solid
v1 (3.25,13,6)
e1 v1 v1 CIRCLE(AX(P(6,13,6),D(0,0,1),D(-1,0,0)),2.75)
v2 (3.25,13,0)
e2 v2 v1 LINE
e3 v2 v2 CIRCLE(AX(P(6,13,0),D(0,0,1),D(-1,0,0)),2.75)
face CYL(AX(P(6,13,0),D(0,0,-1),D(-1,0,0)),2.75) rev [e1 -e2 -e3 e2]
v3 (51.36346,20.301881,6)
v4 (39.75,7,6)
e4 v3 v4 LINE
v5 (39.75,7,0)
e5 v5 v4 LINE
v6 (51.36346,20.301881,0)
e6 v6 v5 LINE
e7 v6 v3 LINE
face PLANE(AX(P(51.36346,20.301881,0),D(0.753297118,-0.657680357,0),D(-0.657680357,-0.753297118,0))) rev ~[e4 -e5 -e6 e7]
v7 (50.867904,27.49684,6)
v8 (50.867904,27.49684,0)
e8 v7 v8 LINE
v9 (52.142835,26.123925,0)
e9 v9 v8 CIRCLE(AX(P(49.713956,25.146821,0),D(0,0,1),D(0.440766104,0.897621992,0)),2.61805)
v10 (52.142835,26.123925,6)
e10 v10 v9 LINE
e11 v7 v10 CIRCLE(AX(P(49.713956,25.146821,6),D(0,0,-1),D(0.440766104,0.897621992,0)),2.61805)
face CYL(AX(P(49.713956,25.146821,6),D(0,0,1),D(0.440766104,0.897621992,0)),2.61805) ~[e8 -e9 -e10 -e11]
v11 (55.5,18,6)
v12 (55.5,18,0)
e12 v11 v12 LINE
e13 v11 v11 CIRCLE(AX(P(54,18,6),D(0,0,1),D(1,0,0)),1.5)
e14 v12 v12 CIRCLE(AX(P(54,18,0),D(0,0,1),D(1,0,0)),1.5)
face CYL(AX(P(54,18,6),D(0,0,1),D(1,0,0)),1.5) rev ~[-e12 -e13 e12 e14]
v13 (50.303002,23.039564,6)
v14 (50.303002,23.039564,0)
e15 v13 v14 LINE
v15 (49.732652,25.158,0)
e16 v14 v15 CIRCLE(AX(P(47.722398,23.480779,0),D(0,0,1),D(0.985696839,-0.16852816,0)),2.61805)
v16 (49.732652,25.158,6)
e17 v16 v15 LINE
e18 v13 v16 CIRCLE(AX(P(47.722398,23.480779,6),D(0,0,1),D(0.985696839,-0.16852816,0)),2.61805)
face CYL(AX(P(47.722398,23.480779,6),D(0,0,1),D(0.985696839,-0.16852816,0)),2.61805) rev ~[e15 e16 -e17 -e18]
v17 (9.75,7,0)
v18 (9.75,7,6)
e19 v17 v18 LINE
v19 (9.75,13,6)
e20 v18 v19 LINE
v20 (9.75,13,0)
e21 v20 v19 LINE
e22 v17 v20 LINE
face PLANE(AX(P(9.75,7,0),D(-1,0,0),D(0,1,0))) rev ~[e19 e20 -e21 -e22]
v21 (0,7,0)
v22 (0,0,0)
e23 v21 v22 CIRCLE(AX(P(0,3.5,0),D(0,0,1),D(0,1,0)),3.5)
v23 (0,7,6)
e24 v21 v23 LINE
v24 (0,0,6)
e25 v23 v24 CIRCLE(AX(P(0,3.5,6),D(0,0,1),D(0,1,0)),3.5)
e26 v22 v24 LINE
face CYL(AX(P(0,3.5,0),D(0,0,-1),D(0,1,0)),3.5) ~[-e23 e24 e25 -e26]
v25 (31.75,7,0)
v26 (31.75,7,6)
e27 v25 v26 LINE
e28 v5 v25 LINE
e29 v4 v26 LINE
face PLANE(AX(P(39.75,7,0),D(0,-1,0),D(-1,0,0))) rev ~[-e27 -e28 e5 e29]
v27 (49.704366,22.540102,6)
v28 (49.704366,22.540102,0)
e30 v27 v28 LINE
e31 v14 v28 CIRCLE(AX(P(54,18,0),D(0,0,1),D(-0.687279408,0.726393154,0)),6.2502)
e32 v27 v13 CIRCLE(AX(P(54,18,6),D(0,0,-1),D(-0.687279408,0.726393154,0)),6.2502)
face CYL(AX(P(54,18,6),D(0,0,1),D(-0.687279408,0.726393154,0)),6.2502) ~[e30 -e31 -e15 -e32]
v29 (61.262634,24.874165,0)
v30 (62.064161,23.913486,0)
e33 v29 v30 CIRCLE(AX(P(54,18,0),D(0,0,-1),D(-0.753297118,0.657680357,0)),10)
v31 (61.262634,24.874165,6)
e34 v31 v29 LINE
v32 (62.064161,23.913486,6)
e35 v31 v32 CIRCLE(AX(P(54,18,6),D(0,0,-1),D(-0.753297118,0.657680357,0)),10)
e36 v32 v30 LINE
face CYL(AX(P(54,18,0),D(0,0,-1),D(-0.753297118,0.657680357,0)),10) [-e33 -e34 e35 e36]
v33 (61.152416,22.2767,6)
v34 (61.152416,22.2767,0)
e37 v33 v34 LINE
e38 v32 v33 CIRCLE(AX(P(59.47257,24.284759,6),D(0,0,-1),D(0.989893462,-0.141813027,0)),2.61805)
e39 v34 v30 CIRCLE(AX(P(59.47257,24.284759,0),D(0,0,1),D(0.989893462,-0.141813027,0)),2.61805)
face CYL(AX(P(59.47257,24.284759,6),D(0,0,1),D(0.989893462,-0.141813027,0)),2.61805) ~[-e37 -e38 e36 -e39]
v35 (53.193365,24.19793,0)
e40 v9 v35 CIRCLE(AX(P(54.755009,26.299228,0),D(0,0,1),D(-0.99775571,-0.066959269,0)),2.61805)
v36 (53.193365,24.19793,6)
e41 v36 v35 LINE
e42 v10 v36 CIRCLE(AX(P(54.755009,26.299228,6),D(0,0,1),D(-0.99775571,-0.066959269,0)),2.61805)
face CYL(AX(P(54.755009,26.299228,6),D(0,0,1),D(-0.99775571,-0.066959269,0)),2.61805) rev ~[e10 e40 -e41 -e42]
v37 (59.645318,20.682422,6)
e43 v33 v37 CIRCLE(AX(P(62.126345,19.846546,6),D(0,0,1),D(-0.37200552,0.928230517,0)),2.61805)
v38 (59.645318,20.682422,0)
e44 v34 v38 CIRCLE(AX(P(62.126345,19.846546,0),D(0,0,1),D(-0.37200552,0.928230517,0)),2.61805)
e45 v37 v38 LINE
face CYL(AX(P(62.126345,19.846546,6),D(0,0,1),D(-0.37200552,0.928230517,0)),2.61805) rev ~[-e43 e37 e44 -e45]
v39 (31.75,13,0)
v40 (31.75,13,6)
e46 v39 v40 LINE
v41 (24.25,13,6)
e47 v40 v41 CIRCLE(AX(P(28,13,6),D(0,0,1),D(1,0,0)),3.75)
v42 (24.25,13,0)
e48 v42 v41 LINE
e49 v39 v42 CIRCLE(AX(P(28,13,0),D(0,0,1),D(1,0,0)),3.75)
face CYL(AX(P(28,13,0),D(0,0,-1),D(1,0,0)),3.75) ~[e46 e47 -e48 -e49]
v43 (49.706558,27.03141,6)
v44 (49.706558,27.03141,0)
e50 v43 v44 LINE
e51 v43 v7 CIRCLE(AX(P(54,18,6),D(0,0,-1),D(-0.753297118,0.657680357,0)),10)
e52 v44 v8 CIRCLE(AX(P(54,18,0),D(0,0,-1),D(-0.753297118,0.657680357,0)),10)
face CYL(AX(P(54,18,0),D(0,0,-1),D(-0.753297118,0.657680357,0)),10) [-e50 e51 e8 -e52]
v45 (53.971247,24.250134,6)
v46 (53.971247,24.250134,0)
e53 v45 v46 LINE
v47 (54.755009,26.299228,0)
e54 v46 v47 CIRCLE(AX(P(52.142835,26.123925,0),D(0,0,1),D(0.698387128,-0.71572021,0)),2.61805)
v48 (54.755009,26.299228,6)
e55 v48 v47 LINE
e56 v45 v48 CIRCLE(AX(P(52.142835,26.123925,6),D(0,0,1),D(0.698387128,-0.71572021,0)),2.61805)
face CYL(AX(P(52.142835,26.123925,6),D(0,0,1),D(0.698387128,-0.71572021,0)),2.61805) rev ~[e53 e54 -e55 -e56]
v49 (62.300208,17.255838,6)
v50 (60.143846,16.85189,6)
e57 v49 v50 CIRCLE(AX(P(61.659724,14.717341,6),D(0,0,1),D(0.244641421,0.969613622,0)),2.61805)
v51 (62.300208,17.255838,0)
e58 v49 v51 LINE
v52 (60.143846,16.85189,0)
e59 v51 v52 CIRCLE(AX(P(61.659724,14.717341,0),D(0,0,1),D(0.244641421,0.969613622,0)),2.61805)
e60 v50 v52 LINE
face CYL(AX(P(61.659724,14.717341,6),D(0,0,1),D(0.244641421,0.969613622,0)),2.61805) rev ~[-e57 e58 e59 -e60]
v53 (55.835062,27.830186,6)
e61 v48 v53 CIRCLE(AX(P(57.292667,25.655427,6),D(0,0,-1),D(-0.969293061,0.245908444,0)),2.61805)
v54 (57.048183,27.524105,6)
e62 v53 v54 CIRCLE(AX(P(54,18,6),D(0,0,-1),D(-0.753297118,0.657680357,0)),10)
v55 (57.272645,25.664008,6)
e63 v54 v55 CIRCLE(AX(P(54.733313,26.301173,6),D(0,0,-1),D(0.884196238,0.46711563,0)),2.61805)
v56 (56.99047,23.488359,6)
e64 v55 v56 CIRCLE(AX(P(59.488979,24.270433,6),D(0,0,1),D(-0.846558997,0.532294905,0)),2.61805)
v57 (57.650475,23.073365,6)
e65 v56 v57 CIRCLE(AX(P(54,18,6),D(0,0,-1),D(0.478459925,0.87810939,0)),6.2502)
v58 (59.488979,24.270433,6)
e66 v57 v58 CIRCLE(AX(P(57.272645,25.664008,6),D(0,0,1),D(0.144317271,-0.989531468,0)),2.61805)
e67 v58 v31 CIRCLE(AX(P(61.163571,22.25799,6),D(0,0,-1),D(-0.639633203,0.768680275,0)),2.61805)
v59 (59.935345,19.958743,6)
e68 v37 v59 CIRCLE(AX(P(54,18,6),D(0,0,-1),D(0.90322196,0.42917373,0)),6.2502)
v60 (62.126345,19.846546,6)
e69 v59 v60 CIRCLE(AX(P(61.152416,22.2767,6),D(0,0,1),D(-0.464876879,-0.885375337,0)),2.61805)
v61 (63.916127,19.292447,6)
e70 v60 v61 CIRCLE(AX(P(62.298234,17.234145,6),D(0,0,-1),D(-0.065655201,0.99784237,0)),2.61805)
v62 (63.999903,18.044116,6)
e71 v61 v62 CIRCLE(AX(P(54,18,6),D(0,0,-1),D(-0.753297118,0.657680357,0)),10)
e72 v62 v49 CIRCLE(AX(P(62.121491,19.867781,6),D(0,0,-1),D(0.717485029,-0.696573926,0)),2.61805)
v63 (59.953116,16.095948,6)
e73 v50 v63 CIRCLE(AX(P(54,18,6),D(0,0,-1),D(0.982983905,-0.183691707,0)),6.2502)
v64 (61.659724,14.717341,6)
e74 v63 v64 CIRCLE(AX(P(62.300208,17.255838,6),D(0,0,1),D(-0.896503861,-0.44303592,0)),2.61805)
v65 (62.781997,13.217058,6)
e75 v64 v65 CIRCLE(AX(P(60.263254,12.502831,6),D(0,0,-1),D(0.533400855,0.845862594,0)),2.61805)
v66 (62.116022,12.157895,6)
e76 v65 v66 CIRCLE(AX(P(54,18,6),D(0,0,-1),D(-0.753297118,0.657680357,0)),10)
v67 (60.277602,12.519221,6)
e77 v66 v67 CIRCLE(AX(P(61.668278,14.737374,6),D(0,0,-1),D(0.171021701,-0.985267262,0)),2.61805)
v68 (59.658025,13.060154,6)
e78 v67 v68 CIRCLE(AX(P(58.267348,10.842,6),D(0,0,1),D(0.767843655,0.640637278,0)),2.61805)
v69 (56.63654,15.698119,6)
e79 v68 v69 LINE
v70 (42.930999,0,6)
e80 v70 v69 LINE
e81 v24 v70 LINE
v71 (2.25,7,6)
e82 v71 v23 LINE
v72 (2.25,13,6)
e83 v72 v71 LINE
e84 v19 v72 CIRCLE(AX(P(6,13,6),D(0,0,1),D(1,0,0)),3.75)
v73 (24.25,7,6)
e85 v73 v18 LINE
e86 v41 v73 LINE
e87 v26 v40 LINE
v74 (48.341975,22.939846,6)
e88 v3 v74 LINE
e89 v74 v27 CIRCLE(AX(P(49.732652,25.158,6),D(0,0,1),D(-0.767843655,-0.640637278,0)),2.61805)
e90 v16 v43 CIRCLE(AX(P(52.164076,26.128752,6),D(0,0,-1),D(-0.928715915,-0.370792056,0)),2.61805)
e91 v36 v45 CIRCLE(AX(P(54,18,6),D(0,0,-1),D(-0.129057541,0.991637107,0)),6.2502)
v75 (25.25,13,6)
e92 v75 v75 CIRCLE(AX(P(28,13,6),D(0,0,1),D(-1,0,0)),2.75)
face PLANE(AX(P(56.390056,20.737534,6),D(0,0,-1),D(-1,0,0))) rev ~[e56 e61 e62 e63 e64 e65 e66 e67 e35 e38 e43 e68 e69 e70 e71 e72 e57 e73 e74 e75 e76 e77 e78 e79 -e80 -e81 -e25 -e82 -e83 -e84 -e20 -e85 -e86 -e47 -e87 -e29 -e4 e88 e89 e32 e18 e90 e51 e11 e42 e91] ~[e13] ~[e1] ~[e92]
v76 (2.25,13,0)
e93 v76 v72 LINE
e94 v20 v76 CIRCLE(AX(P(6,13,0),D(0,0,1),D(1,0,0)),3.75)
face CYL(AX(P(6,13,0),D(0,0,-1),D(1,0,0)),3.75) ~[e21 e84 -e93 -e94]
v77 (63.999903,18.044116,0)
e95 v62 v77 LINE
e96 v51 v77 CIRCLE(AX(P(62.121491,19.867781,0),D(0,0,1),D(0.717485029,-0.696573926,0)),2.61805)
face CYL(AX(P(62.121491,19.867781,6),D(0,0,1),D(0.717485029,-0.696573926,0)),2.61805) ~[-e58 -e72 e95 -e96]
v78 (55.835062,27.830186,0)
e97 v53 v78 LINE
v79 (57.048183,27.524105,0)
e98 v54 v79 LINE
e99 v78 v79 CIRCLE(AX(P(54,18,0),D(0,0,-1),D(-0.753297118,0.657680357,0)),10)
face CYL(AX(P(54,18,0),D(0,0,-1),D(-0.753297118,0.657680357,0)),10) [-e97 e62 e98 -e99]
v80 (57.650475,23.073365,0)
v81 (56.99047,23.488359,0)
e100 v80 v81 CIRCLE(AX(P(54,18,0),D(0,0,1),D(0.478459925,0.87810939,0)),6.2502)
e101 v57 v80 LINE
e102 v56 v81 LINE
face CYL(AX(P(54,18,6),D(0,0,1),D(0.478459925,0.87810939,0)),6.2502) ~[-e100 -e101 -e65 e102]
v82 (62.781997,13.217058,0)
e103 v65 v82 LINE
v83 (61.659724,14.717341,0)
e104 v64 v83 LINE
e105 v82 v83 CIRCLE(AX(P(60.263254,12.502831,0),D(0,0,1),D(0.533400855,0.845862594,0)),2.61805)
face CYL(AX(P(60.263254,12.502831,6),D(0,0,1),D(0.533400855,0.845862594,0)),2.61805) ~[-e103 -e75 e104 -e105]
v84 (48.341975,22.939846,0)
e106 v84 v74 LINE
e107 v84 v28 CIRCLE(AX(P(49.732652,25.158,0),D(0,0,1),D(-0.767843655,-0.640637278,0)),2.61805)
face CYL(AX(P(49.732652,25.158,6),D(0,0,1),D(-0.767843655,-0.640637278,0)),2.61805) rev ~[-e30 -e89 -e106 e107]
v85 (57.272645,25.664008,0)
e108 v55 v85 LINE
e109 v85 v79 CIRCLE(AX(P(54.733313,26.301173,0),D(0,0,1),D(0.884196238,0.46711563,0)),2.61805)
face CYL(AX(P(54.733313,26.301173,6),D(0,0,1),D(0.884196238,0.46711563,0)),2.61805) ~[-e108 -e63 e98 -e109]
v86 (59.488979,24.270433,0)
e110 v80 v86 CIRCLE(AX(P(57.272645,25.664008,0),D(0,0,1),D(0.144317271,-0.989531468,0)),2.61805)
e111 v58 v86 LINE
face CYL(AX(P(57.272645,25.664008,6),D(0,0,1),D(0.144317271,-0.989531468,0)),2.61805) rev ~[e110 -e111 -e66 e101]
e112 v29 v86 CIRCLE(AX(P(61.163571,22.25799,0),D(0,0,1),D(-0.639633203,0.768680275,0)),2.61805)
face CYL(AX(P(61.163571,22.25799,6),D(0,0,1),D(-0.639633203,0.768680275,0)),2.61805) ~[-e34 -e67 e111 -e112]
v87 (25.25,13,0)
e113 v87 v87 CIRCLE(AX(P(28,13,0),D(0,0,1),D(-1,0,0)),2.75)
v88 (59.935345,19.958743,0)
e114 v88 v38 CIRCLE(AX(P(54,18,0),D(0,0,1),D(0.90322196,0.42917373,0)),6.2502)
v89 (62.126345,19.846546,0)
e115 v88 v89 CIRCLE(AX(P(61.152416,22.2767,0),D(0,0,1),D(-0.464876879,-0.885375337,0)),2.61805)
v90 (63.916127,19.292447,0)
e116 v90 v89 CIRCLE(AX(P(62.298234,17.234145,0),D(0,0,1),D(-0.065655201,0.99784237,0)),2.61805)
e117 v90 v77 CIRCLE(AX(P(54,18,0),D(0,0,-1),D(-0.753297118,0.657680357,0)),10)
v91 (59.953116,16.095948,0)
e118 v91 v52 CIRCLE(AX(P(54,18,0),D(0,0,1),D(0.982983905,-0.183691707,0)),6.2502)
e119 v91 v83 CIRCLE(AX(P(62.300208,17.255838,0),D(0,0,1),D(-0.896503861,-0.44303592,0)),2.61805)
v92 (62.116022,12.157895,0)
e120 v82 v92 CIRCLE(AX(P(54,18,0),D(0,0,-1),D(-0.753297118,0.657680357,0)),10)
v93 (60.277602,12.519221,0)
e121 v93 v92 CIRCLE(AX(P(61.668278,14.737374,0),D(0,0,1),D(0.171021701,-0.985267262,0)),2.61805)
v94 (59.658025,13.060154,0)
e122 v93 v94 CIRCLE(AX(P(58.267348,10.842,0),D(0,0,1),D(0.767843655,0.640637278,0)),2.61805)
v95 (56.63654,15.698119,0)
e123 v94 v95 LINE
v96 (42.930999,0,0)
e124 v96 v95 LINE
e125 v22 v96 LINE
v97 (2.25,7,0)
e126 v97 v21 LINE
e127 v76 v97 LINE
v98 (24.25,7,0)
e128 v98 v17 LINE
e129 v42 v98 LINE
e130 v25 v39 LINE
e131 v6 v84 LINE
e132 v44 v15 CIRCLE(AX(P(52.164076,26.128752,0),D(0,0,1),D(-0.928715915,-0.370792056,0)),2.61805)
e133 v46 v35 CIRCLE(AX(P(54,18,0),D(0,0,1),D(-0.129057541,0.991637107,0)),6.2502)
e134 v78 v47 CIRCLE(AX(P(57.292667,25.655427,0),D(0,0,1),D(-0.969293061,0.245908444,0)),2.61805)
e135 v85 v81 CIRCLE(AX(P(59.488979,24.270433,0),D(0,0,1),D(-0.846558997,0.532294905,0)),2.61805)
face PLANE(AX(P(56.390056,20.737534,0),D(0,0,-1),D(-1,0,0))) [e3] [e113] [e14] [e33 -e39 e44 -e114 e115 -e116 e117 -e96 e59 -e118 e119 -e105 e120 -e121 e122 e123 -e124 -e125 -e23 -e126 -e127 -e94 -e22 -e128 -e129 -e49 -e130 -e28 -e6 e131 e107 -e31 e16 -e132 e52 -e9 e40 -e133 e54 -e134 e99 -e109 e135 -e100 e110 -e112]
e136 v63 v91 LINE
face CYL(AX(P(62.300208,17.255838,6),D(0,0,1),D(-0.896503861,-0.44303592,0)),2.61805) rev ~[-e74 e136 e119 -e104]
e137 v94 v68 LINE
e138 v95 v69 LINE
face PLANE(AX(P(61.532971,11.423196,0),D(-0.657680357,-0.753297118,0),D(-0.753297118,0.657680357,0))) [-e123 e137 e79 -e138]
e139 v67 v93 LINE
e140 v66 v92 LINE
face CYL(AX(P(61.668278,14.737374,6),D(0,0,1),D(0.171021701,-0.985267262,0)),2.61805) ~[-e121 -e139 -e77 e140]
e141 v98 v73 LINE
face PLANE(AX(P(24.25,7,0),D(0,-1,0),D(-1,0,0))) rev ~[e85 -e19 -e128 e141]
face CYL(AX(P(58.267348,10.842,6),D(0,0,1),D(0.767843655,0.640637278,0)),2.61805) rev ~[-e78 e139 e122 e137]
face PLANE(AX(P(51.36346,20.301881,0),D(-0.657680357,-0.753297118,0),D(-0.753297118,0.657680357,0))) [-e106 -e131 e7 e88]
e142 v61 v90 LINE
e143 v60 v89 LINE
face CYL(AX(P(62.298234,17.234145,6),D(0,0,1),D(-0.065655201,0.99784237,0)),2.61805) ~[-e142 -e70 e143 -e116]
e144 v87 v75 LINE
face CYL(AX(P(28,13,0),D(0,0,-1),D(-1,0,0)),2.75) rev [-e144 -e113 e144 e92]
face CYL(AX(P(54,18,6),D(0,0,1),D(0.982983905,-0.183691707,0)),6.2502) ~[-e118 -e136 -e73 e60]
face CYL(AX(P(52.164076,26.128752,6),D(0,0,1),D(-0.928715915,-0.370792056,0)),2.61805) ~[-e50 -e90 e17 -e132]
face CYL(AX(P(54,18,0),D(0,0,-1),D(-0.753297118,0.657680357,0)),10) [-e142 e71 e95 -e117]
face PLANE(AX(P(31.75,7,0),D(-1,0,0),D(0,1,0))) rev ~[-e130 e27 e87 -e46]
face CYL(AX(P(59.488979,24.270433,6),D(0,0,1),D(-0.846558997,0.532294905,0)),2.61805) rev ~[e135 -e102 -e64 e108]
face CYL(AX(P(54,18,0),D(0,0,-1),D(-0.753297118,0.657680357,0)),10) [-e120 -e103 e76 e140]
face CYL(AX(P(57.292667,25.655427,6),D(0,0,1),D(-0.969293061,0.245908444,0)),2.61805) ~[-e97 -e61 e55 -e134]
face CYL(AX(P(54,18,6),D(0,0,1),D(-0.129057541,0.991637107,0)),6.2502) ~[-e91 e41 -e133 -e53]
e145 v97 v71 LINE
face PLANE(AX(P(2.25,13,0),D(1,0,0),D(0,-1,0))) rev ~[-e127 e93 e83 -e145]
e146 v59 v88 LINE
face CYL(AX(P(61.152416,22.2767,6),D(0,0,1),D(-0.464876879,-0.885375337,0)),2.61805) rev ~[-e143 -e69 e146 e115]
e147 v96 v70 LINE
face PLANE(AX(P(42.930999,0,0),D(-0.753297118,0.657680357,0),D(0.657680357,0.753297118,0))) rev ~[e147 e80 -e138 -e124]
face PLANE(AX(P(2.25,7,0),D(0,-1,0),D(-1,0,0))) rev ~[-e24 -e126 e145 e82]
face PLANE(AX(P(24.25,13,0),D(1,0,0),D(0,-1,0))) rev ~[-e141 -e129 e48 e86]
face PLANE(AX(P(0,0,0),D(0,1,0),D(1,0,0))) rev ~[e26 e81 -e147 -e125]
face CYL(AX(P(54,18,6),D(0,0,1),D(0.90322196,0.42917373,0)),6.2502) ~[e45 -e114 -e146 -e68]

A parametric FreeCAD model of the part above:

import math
import FreeCAD as App
import Part
import Sketcher

V = App.Vector
Q = App.Units.Quantity

doc = App.newDocument("Part")
params = doc.addObject("Spreadsheet::Sheet", "Params")
for row, (alias, value) in enumerate([
    ("sketch1_diameter", "5.5 mm"),
    ("sketch1_radius", "3.5 mm"),
    ("sketch1_width", "8 mm"),
    ("sketch1_height", "6 mm"),
    ("sketch1_radius2", "3.75 mm"),
    ("pad1_length", "6 mm"),
    ("sketch2_radius", "10 mm"),
    ("sketch2_radius2", "3.5 mm"),
    ("pad2_length", "6 mm"),
    ("sketch3_radius", "10 mm"),
    ("sketch4_diameter", "3 mm"),
], start=1):
    params.set(f"A{row}", alias)
    params.set(f"B{row}", "=" + value)
    params.setAlias(f"B{row}", alias)

body = doc.addObject("PartDesign::Body", "Body")

# Sketch on XY plane
sketch1 = doc.addObject("Sketcher::SketchObject", "Sketch")
body.addObject(sketch1)
sketch1.AttachmentSupport = (doc.XY_Plane, [""])
sketch1.MapMode = "FlatFace"
sketch1.addGeometry(Part.LineSegment(V(0, 0, 0), V(42.930999, 0, 0)), False)
sketch1.addGeometry(Part.LineSegment(V(42.930999, 0, 0), V(56.63654, 15.698119, 0)), False)
sketch1.addGeometry(Part.ArcOfCircle(Part.Circle(V(54, 18, 0), V(0, 0, 1), 3.5), math.radians(-41.123203), math.radians(138.876797)), False)
sketch1.addGeometry(Part.LineSegment(V(51.36346, 20.301881, 0), V(39.75, 7, 0)), False)
sketch1.addGeometry(Part.LineSegment(V(39.75, 7, 0), V(31.75, 7, 0)), False)
sketch1.addGeometry(Part.LineSegment(V(31.75, 7, 0), V(31.75, 13, 0)), False)
sketch1.addGeometry(Part.ArcOfCircle(Part.Circle(V(28, 13, 0), V(0, 0, 1), 3.75), math.radians(0), math.radians(180)), False)
sketch1.addGeometry(Part.LineSegment(V(24.25, 13, 0), V(24.25, 7, 0)), False)
sketch1.addGeometry(Part.LineSegment(V(24.25, 7, 0), V(9.75, 7, 0)), False)
sketch1.addGeometry(Part.LineSegment(V(9.75, 7, 0), V(9.75, 13, 0)), False)
sketch1.addGeometry(Part.ArcOfCircle(Part.Circle(V(6, 13, 0), V(0, 0, 1), 3.75), math.radians(0), math.radians(180)), False)
sketch1.addGeometry(Part.LineSegment(V(2.25, 13, 0), V(2.25, 7, 0)), False)
sketch1.addGeometry(Part.LineSegment(V(2.25, 7, 0), V(0, 7, 0)), False)
sketch1.addGeometry(Part.ArcOfCircle(Part.Circle(V(0, 3.5, 0), V(0, 0, 1), 3.5), math.radians(90), math.radians(270)), False)
sketch1.addGeometry(Part.Circle(V(6, 13, 0), V(0, 0, 1), 2.75), False)
sketch1.addGeometry(Part.Circle(V(28, 13, 0), V(0, 0, 1), 2.75), False)
sketch1.addConstraint(Sketcher.Constraint("Coincident", 0, 2, 1, 1))
sketch1.addConstraint(Sketcher.Constraint("Tangent", 1, 2, 2, 1))
sketch1.addConstraint(Sketcher.Constraint("Tangent", 2, 2, 3, 1))
sketch1.addConstraint(Sketcher.Constraint("Coincident", 3, 2, 4, 1))
sketch1.addConstraint(Sketcher.Constraint("Coincident", 4, 2, 5, 1))
sketch1.addConstraint(Sketcher.Constraint("Tangent", 5, 2, 6, 1))
sketch1.addConstraint(Sketcher.Constraint("Tangent", 6, 2, 7, 1))
sketch1.addConstraint(Sketcher.Constraint("Coincident", 7, 2, 8, 1))
sketch1.addConstraint(Sketcher.Constraint("Coincident", 8, 2, 9, 1))
sketch1.addConstraint(Sketcher.Constraint("Tangent", 9, 2, 10, 1))
sketch1.addConstraint(Sketcher.Constraint("Tangent", 10, 2, 11, 1))
sketch1.addConstraint(Sketcher.Constraint("Coincident", 11, 2, 12, 1))
sketch1.addConstraint(Sketcher.Constraint("Tangent", 12, 2, 13, 1))
sketch1.addConstraint(Sketcher.Constraint("Tangent", 13, 2, 0, 1))
sketch1.addConstraint(Sketcher.Constraint("Horizontal", 0))
sketch1.addConstraint(Sketcher.Constraint("Horizontal", 4))
sketch1.addConstraint(Sketcher.Constraint("Vertical", 5))
sketch1.addConstraint(Sketcher.Constraint("Vertical", 7))
sketch1.addConstraint(Sketcher.Constraint("Horizontal", 8))
sketch1.addConstraint(Sketcher.Constraint("Vertical", 9))
sketch1.addConstraint(Sketcher.Constraint("Vertical", 11))
sketch1.addConstraint(Sketcher.Constraint("Horizontal", 12))
sketch1.addConstraint(Sketcher.Constraint("Coincident", 13, 2, -1, 1))
sketch1.addConstraint(Sketcher.Constraint("Coincident", 14, 3, 10, 3))
sketch1.addConstraint(Sketcher.Constraint("Coincident", 15, 3, 6, 3))
sketch1.addConstraint(Sketcher.Constraint("Equal", 6, 10))
sketch1.addConstraint(Sketcher.Constraint("Equal", 2, 13))
sketch1.addConstraint(Sketcher.Constraint("Equal", 14, 15))
sketch1.addConstraint(Sketcher.Constraint("Parallel", 1, 3))
sketch1.addConstraint(Sketcher.Constraint("Horizontal", 6, 3, 10, 3))
sketch1.addConstraint(Sketcher.Constraint("Horizontal", 4, 2, 7, 2))
sketch1.addConstraint(Sketcher.Constraint("Horizontal", 8, 2, 11, 2))
sketch1.addConstraint(Sketcher.Constraint("Diameter", 14, Q("5.5 mm")))
sketch1.addConstraint(Sketcher.Constraint("Radius", 2, Q("3.5 mm")))
sketch1.addConstraint(Sketcher.Constraint("DistanceX", 4, 2, 4, 1, Q("8 mm")))
sketch1.addConstraint(Sketcher.Constraint("DistanceY", 5, 1, 5, 2, Q("6 mm")))
sketch1.addConstraint(Sketcher.Constraint("Radius", 6, Q("3.75 mm")))
sketch1.addConstraint(Sketcher.Constraint("DistanceX", 8, 2, 8, 1, Q("14.5 mm")))
sketch1.addConstraint(Sketcher.Constraint("DistanceX", -1, 1, 2, 3, Q("54 mm")))
sketch1.addConstraint(Sketcher.Constraint("DistanceY", -1, 1, 2, 3, Q("18 mm")))
sketch1.addConstraint(Sketcher.Constraint("DistanceX", -1, 1, 6, 3, Q("28 mm")))
sketch1.setExpression("Constraints[32]", "Params.sketch1_diameter")
sketch1.setExpression("Constraints[33]", "Params.sketch1_radius")
sketch1.setExpression("Constraints[34]", "Params.sketch1_width")
sketch1.setExpression("Constraints[35]", "Params.sketch1_height")
sketch1.setExpression("Constraints[36]", "Params.sketch1_radius2")
pad1 = doc.addObject("PartDesign::Pad", "Pad")
body.addObject(pad1)
pad1.Profile = sketch1
pad1.setExpression("Length", "Params.pad1_length")

# Sketch on XY plane
sketch2 = doc.addObject("Sketcher::SketchObject", "Sketch001")
body.addObject(sketch2)
sketch2.AttachmentSupport = (doc.XY_Plane, [""])
sketch2.MapMode = "FlatFace"
sketch2.addGeometry(Part.LineSegment(V(46.467029, 24.576804, 0), V(51.36346, 20.301881, 0)), False)
sketch2.addGeometry(Part.ArcOfCircle(Part.Circle(V(54, 18, 0), V(0, 0, 1), 3.5), math.radians(-41.123203), math.radians(138.876797)), False)
sketch2.addGeometry(Part.LineSegment(V(56.63654, 15.698119, 0), V(61.532971, 11.423196, 0)), False)
sketch2.addGeometry(Part.ArcOfCircle(Part.Circle(V(54, 18, 0), V(0, 0, 1), 10), math.radians(-41.123203), math.radians(138.876797)), False)
sketch2.addConstraint(Sketcher.Constraint("Coincident", 0, 2, 1, 2))
sketch2.addConstraint(Sketcher.Constraint("Coincident", 1, 1, 2, 1))
sketch2.addConstraint(Sketcher.Constraint("Coincident", 2, 2, 3, 1))
sketch2.addConstraint(Sketcher.Constraint("Coincident", 3, 2, 0, 1))
sketch2.addConstraint(Sketcher.Constraint("Coincident", 3, 3, 1, 3))
sketch2.addConstraint(Sketcher.Constraint("Parallel", 0, 2))
sketch2.addConstraint(Sketcher.Constraint("Radius", 3, Q("10 mm")))
sketch2.addConstraint(Sketcher.Constraint("Radius", 1, Q("3.5 mm")))
sketch2.addConstraint(Sketcher.Constraint("DistanceX", -1, 1, 1, 3, Q("54 mm")))
sketch2.addConstraint(Sketcher.Constraint("DistanceY", -1, 1, 1, 3, Q("18 mm")))
sketch2.addConstraint(Sketcher.Constraint("DistanceX", -1, 1, 0, 2, Q("51.36346 mm")))
sketch2.addConstraint(Sketcher.Constraint("DistanceX", -1, 1, 1, 1, Q("56.63654 mm")))
sketch2.addConstraint(Sketcher.Constraint("DistanceX", -1, 1, 2, 2, Q("61.532971 mm")))
sketch2.setExpression("Constraints[6]", "Params.sketch2_radius")
sketch2.setExpression("Constraints[7]", "Params.sketch2_radius2")
pad2 = doc.addObject("PartDesign::Pad", "Pad001")
body.addObject(pad2)
pad2.Profile = sketch2
pad2.setExpression("Length", "Params.pad2_length")

# Sketch on XY plane
sketch3 = doc.addObject("Sketcher::SketchObject", "Sketch002")
body.addObject(sketch3)
sketch3.AttachmentSupport = (doc.XY_Plane, [""])
sketch3.MapMode = "FlatFace"
sketch3.AttachmentOffset = App.Placement(V(0, 0, 6), App.Rotation())
sketch3.addGeometry(Part.ArcOfCircle(Part.Circle(V(54, 18, 0), V(0, 0, 1), 10), math.radians(115.425947), math.radians(144.252765)), False)
sketch3.addGeometry(Part.ArcOfCircle(Part.Circle(V(46.331722, 21.262626, 0), V(0, 0, 1), 2.61805), math.radians(57.914238), math.radians(99.847228)), False)
sketch3.addGeometry(Part.ArcOfCircle(Part.Circle(V(49.732652, 25.158, 0), V(0, 0, 1), 2.61805), math.radians(-140.160644), math.radians(-90.619034)), False)
sketch3.addGeometry(Part.ArcOfCircle(Part.Circle(V(54, 18, 0), V(0, 0, 1), 6.2502), math.radians(126.263578), math.radians(133.415134)), False)
sketch3.addGeometry(Part.ArcOfCircle(Part.Circle(V(47.722398, 23.480779, 0), V(0, 0, 1), 2.61805), math.radians(-9.702254), math.radians(39.839356)), False)
sketch3.addGeometry(Part.ArcOfCircle(Part.Circle(V(52.164076, 26.128752, 0), V(0, 0, 1), 2.61805), math.radians(159.831484), math.radians(201.764474)), False)
sketch3.addGeometry(Part.ArcOfCircle(Part.Circle(V(54, 18, 0), V(0, 0, 1), 10), math.radians(79.425947), math.radians(108.252765)), False)
sketch3.addGeometry(Part.ArcOfCircle(Part.Circle(V(49.713956, 25.146821, 0), V(0, 0, 1), 2.61805), math.radians(21.914239), math.radians(63.847228)), False)
sketch3.addGeometry(Part.ArcOfCircle(Part.Circle(V(54.755009, 26.299228, 0), V(0, 0, 1), 2.61805), math.radians(-176.160644), math.radians(-126.619034)), False)
sketch3.addGeometry(Part.ArcOfCircle(Part.Circle(V(54, 18, 0), V(0, 0, 1), 6.2502), math.radians(90.263578), math.radians(97.415135)), False)
sketch3.addGeometry(Part.ArcOfCircle(Part.Circle(V(52.142835, 26.123925, 0), V(0, 0, 1), 2.61805), math.radians(-45.702254), math.radians(3.839356)), False)
sketch3.addGeometry(Part.ArcOfCircle(Part.Circle(V(57.292667, 25.655427, 0), V(0, 0, 1), 2.61805), math.radians(123.831484), math.radians(165.764474)), False)
sketch3.addGeometry(Part.ArcOfCircle(Part.Circle(V(54, 18, 0), V(0, 0, 1), 10), math.radians(43.425947), math.radians(72.252765)), False)
sketch3.addGeometry(Part.ArcOfCircle(Part.Circle(V(54.733313, 26.301173, 0), V(0, 0, 1), 2.61805), math.radians(-14.085762), math.radians(27.847228)), False)
sketch3.addGeometry(Part.ArcOfCircle(Part.Circle(V(59.488979, 24.270433, 0), V(0, 0, 1), 2.61805), math.radians(147.839356), math.radians(197.380966)), False)
sketch3.addGeometry(Part.ArcOfCircle(Part.Circle(V(54, 18, 0), V(0, 0, 1), 6.2502), math.radians(54.263578), math.radians(61.415134)), False)
sketch3.addGeometry(Part.ArcOfCircle(Part.Circle(V(57.272645, 25.664008, 0), V(0, 0, 1), 2.61805), math.radians(-81.702254), math.radians(-32.160644)), False)
sketch3.addGeometry(Part.ArcOfCircle(Part.Circle(V(61.163571, 22.25799, 0), V(0, 0, 1), 2.61805), math.radians(87.831484), math.radians(129.764474)), False)
sketch3.addGeometry(Part.ArcOfCircle(Part.Circle(V(54, 18, 0), V(0, 0, 1), 10), math.radians(7.425947), math.radians(36.252765)), False)
sketch3.addGeometry(Part.ArcOfCircle(Part.Circle(V(59.47257, 24.284759, 0), V(0, 0, 1), 2.61805), math.radians(-50.085761), math.radians(-8.152772)), False)
sketch3.addGeometry(Part.ArcOfCircle(Part.Circle(V(62.126345, 19.846546, 0), V(0, 0, 1), 2.61805), math.radians(111.839356), math.radians(161.380966)), False)
sketch3.addGeometry(Part.ArcOfCircle(Part.Circle(V(54, 18, 0), V(0, 0, 1), 6.2502), math.radians(18.263578), math.radians(25.415134)), False)
sketch3.addGeometry(Part.ArcOfCircle(Part.Circle(V(61.152416, 22.2767, 0), V(0, 0, 1), 2.61805), math.radians(-117.702254), math.radians(-68.160644)), False)
sketch3.addGeometry(Part.ArcOfCircle(Part.Circle(V(62.298234, 17.234145, 0), V(0, 0, 1), 2.61805), math.radians(51.831484), math.radians(93.764474)), False)
sketch3.addGeometry(Part.ArcOfCircle(Part.Circle(V(54, 18, 0), V(0, 0, 1), 10), math.radians(-28.574053), math.radians(0.252765)), False)
sketch3.addGeometry(Part.ArcOfCircle(Part.Circle(V(62.121491, 19.867781, 0), V(0, 0, 1), 2.61805), math.radians(-86.085762), math.radians(-44.152772)), False)
sketch3.addGeometry(Part.ArcOfCircle(Part.Circle(V(61.659724, 14.717341, 0), V(0, 0, 1), 2.61805), math.radians(75.839356), math.radians(125.380966)), False)
sketch3.addGeometry(Part.ArcOfCircle(Part.Circle(V(54, 18, 0), V(0, 0, 1), 6.2502), math.radians(-17.736422), math.radians(-10.584866)), False)
sketch3.addGeometry(Part.ArcOfCircle(Part.Circle(V(62.300208, 17.255838, 0), V(0, 0, 1), 2.61805), math.radians(-153.702254), math.radians(-104.160644)), False)
sketch3.addGeometry(Part.ArcOfCircle(Part.Circle(V(60.263254, 12.502831, 0), V(0, 0, 1), 2.61805), math.radians(15.831484), math.radians(57.764474)), False)
sketch3.addGeometry(Part.ArcOfCircle(Part.Circle(V(54, 18, 0), V(0, 0, 1), 10), math.radians(-64.574053), math.radians(-35.747235)), False)
sketch3.addGeometry(Part.ArcOfCircle(Part.Circle(V(61.668278, 14.737374, 0), V(0, 0, 1), 2.61805), math.radians(-122.085762), math.radians(-80.152772)), False)
sketch3.addGeometry(Part.ArcOfCircle(Part.Circle(V(58.267348, 10.842, 0), V(0, 0, 1), 2.61805), math.radians(39.839356), math.radians(89.380966)), False)
sketch3.addGeometry(Part.ArcOfCircle(Part.Circle(V(54, 18, 0), V(0, 0, 1), 6.2502), math.radians(-53.736422), math.radians(-46.584866)), False)
sketch3.addGeometry(Part.ArcOfCircle(Part.Circle(V(60.277602, 12.519221, 0), V(0, 0, 1), 2.61805), math.radians(170.297746), math.radians(219.839356)), False)
sketch3.addGeometry(Part.ArcOfCircle(Part.Circle(V(55.835924, 9.871248, 0), V(0, 0, 1), 2.61805), math.radians(-20.168516), math.radians(21.764474)), False)
sketch3.addConstraint(Sketcher.Constraint("Coincident", 0, 2, 1, 2))
sketch3.addConstraint(Sketcher.Constraint("Coincident", 1, 1, 2, 1))
sketch3.addConstraint(Sketcher.Constraint("Coincident", 2, 2, 3, 2))
sketch3.addConstraint(Sketcher.Constraint("Coincident", 3, 1, 4, 1))
sketch3.addConstraint(Sketcher.Constraint("Coincident", 4, 2, 5, 2))
sketch3.addConstraint(Sketcher.Constraint("Coincident", 5, 1, 0, 1))
sketch3.addConstraint(Sketcher.Constraint("Coincident", 6, 2, 7, 2))
sketch3.addConstraint(Sketcher.Constraint("Coincident", 7, 1, 8, 1))
sketch3.addConstraint(Sketcher.Constraint("Coincident", 8, 2, 9, 2))
sketch3.addConstraint(Sketcher.Constraint("Coincident", 9, 1, 10, 1))
sketch3.addConstraint(Sketcher.Constraint("Coincident", 10, 2, 11, 2))
sketch3.addConstraint(Sketcher.Constraint("Coincident", 11, 1, 6, 1))
sketch3.addConstraint(Sketcher.Constraint("Coincident", 12, 2, 13, 2))
sketch3.addConstraint(Sketcher.Constraint("Coincident", 13, 1, 14, 1))
sketch3.addConstraint(Sketcher.Constraint("Coincident", 14, 2, 15, 2))
sketch3.addConstraint(Sketcher.Constraint("Coincident", 15, 1, 16, 1))
sketch3.addConstraint(Sketcher.Constraint("Coincident", 16, 2, 17, 2))
sketch3.addConstraint(Sketcher.Constraint("Coincident", 17, 1, 12, 1))
sketch3.addConstraint(Sketcher.Constraint("Coincident", 18, 2, 19, 2))
sketch3.addConstraint(Sketcher.Constraint("Coincident", 19, 1, 20, 1))
sketch3.addConstraint(Sketcher.Constraint("Coincident", 20, 2, 21, 2))
sketch3.addConstraint(Sketcher.Constraint("Coincident", 21, 1, 22, 1))
sketch3.addConstraint(Sketcher.Constraint("Coincident", 22, 2, 23, 2))
sketch3.addConstraint(Sketcher.Constraint("Coincident", 23, 1, 18, 1))
sketch3.addConstraint(Sketcher.Constraint("Coincident", 24, 2, 25, 2))
sketch3.addConstraint(Sketcher.Constraint("Coincident", 25, 1, 26, 1))
sketch3.addConstraint(Sketcher.Constraint("Coincident", 26, 2, 27, 2))
sketch3.addConstraint(Sketcher.Constraint("Coincident", 27, 1, 28, 1))
sketch3.addConstraint(Sketcher.Constraint("Coincident", 28, 2, 29, 2))
sketch3.addConstraint(Sketcher.Constraint("Coincident", 29, 1, 24, 1))
sketch3.addConstraint(Sketcher.Constraint("Coincident", 30, 2, 31, 2))
sketch3.addConstraint(Sketcher.Constraint("Coincident", 31, 1, 32, 1))
sketch3.addConstraint(Sketcher.Constraint("Coincident", 32, 2, 33, 2))
sketch3.addConstraint(Sketcher.Constraint("Coincident", 33, 1, 34, 1))
sketch3.addConstraint(Sketcher.Constraint("Coincident", 34, 2, 35, 2))
sketch3.addConstraint(Sketcher.Constraint("Coincident", 35, 1, 30, 1))
sketch3.addConstraint(Sketcher.Constraint("Coincident", 3, 3, 0, 3))
sketch3.addConstraint(Sketcher.Constraint("Coincident", 6, 3, 0, 3))
sketch3.addConstraint(Sketcher.Constraint("Coincident", 9, 3, 0, 3))
sketch3.addConstraint(Sketcher.Constraint("Coincident", 12, 3, 0, 3))
sketch3.addConstraint(Sketcher.Constraint("Coincident", 15, 3, 0, 3))
sketch3.addConstraint(Sketcher.Constraint("Coincident", 18, 3, 0, 3))
sketch3.addConstraint(Sketcher.Constraint("Coincident", 21, 3, 0, 3))
sketch3.addConstraint(Sketcher.Constraint("Coincident", 24, 3, 0, 3))
sketch3.addConstraint(Sketcher.Constraint("Coincident", 27, 3, 0, 3))
sketch3.addConstraint(Sketcher.Constraint("Coincident", 30, 3, 0, 3))
sketch3.addConstraint(Sketcher.Constraint("Coincident", 33, 3, 0, 3))
sketch3.addConstraint(Sketcher.Constraint("Coincident", 1, 1, 4, 3))
sketch3.addConstraint(Sketcher.Constraint("Coincident", 4, 2, 2, 3))
sketch3.addConstraint(Sketcher.Constraint("Coincident", 7, 1, 10, 3))
sketch3.addConstraint(Sketcher.Constraint("Coincident", 10, 2, 8, 3))
sketch3.addConstraint(Sketcher.Constraint("Coincident", 13, 1, 16, 3))
sketch3.addConstraint(Sketcher.Constraint("Coincident", 16, 2, 14, 3))
sketch3.addConstraint(Sketcher.Constraint("Coincident", 19, 1, 22, 3))
sketch3.addConstraint(Sketcher.Constraint("Coincident", 22, 2, 20, 3))
sketch3.addConstraint(Sketcher.Constraint("Coincident", 25, 1, 28, 3))
sketch3.addConstraint(Sketcher.Constraint("Coincident", 28, 2, 26, 3))
sketch3.addConstraint(Sketcher.Constraint("Coincident", 31, 1, 34, 3))
sketch3.addConstraint(Sketcher.Constraint("Coincident", 34, 2, 32, 3))
sketch3.addConstraint(Sketcher.Constraint("Equal", 1, 2))
sketch3.addConstraint(Sketcher.Constraint("Equal", 4, 5))
sketch3.addConstraint(Sketcher.Constraint("Equal", 0, 6))
sketch3.addConstraint(Sketcher.Constraint("Equal", 5, 7))
sketch3.addConstraint(Sketcher.Constraint("Equal", 7, 8))
sketch3.addConstraint(Sketcher.Constraint("Equal", 3, 9))
sketch3.addConstraint(Sketcher.Constraint("Equal", 10, 11))
sketch3.addConstraint(Sketcher.Constraint("Equal", 6, 12))
sketch3.addConstraint(Sketcher.Constraint("Equal", 11, 13))
sketch3.addConstraint(Sketcher.Constraint("Equal", 13, 14))
sketch3.addConstraint(Sketcher.Constraint("Equal", 9, 15))
sketch3.addConstraint(Sketcher.Constraint("Equal", 16, 17))
sketch3.addConstraint(Sketcher.Constraint("Equal", 12, 18))
sketch3.addConstraint(Sketcher.Constraint("Equal", 17, 19))
sketch3.addConstraint(Sketcher.Constraint("Equal", 19, 20))
sketch3.addConstraint(Sketcher.Constraint("Equal", 15, 21))
sketch3.addConstraint(Sketcher.Constraint("Equal", 22, 23))
sketch3.addConstraint(Sketcher.Constraint("Equal", 18, 24))
sketch3.addConstraint(Sketcher.Constraint("Equal", 23, 25))
sketch3.addConstraint(Sketcher.Constraint("Equal", 25, 26))
sketch3.addConstraint(Sketcher.Constraint("Equal", 21, 27))
sketch3.addConstraint(Sketcher.Constraint("Equal", 28, 29))
sketch3.addConstraint(Sketcher.Constraint("Equal", 24, 30))
sketch3.addConstraint(Sketcher.Constraint("Equal", 29, 31))
sketch3.addConstraint(Sketcher.Constraint("Equal", 31, 32))
sketch3.addConstraint(Sketcher.Constraint("Equal", 27, 33))
sketch3.addConstraint(Sketcher.Constraint("Equal", 34, 35))
sketch3.addConstraint(Sketcher.Constraint("Radius", 0, Q("10 mm")))
sketch3.addConstraint(Sketcher.Constraint("DistanceX", -1, 1, 0, 3, Q("54 mm")))
sketch3.addConstraint(Sketcher.Constraint("DistanceY", -1, 1, 0, 3, Q("18 mm")))
sketch3.addConstraint(Sketcher.Constraint("Radius", 3, Q("6.2502 mm")))
sketch3.addConstraint(Sketcher.Constraint("Radius", 1, Q("2.61805 mm")))
sketch3.addConstraint(Sketcher.Constraint("DistanceY", -1, 1, 2, 3, Q("25.158 mm")))
sketch3.addConstraint(Sketcher.Constraint("DistanceY", -1, 1, 32, 3, Q("10.842 mm")))
sketch3.addConstraint(Sketcher.Constraint("DistanceX", -1, 1, 4, 3, Q("47.722398 mm")))
sketch3.addConstraint(Sketcher.Constraint("DistanceY", -1, 1, 22, 3, Q("22.2767 mm")))
sketch3.addConstraint(Sketcher.Constraint("DistanceX", -1, 1, 34, 3, Q("60.277602 mm")))
sketch3.addConstraint(Sketcher.Constraint("DistanceX", -1, 1, 1, 3, Q("46.331722 mm")))
sketch3.addConstraint(Sketcher.Constraint("DistanceX", -1, 1, 2, 3, Q("49.732652 mm")))
sketch3.addConstraint(Sketcher.Constraint("DistanceY", -1, 1, 5, 3, Q("26.128752 mm")))
sketch3.addConstraint(Sketcher.Constraint("DistanceY", -1, 1, 7, 3, Q("25.146821 mm")))
sketch3.addConstraint(Sketcher.Constraint("DistanceX", -1, 1, 8, 3, Q("54.755009 mm")))
sketch3.addConstraint(Sketcher.Constraint("DistanceX", -1, 1, 14, 3, Q("59.488979 mm")))
sketch3.addConstraint(Sketcher.Constraint("DistanceX", -1, 1, 17, 3, Q("61.163571 mm")))
sketch3.addConstraint(Sketcher.Constraint("DistanceY", -1, 1, 17, 3, Q("22.25799 mm")))
sketch3.addConstraint(Sketcher.Constraint("DistanceX", -1, 1, 19, 3, Q("59.47257 mm")))
sketch3.addConstraint(Sketcher.Constraint("DistanceY", -1, 1, 19, 3, Q("24.284759 mm")))
sketch3.addConstraint(Sketcher.Constraint("DistanceX", -1, 1, 25, 3, Q("62.121491 mm")))
sketch3.addConstraint(Sketcher.Constraint("DistanceY", -1, 1, 25, 3, Q("19.867781 mm")))
sketch3.addConstraint(Sketcher.Constraint("DistanceY", -1, 1, 26, 3, Q("14.717341 mm")))
sketch3.addConstraint(Sketcher.Constraint("DistanceY", -1, 1, 28, 3, Q("17.255838 mm")))
sketch3.addConstraint(Sketcher.Constraint("DistanceY", -1, 1, 29, 3, Q("12.502831 mm")))
sketch3.addConstraint(Sketcher.Constraint("DistanceX", -1, 1, 31, 3, Q("61.668278 mm")))
sketch3.addConstraint(Sketcher.Constraint("DistanceX", -1, 1, 32, 3, Q("58.267348 mm")))
sketch3.addConstraint(Sketcher.Constraint("DistanceY", -1, 1, 35, 3, Q("9.871248 mm")))
sketch3.addConstraint(Sketcher.Constraint("DistanceY", -1, 1, 6, 2, Q("27.49684 mm")))
sketch3.addConstraint(Sketcher.Constraint("DistanceY", -1, 1, 8, 2, Q("24.19793 mm")))
sketch3.addConstraint(Sketcher.Constraint("DistanceX", -1, 1, 11, 1, Q("55.835062 mm")))
sketch3.addConstraint(Sketcher.Constraint("DistanceY", -1, 1, 20, 2, Q("20.682422 mm")))
sketch3.addConstraint(Sketcher.Constraint("DistanceX", -1, 1, 13, 3, Q("54.733313 mm")))
sketch3.addConstraint(Sketcher.Constraint("DistanceY", -1, 1, 13, 3, Q("26.301173 mm")))
sketch3.addConstraint(Sketcher.Constraint("DistanceX", -1, 1, 23, 3, Q("62.298234 mm")))
sketch3.setExpression("Constraints[86]", "Params.sketch3_radius")
pocket1 = doc.addObject("PartDesign::Pocket", "Pocket")
body.addObject(pocket1)
pocket1.Profile = sketch3
pocket1.Type = "ThroughAll"

# Sketch on XY plane
sketch4 = doc.addObject("Sketcher::SketchObject", "Sketch003")
body.addObject(sketch4)
sketch4.AttachmentSupport = (doc.XY_Plane, [""])
sketch4.MapMode = "FlatFace"
sketch4.AttachmentOffset = App.Placement(V(0, 0, 6), App.Rotation())
sketch4.addGeometry(Part.Circle(V(54, 18, 0), V(0, 0, 1), 1.5), False)
sketch4.addConstraint(Sketcher.Constraint("Diameter", 0, Q("3 mm")))
sketch4.addConstraint(Sketcher.Constraint("DistanceX", -1, 1, 0, 3, Q("54 mm")))
sketch4.addConstraint(Sketcher.Constraint("DistanceY", -1, 1, 0, 3, Q("18 mm")))
sketch4.setExpression("Constraints[0]", "Params.sketch4_diameter")
pocket2 = doc.addObject("PartDesign::Pocket", "Pocket001")
body.addObject(pocket2)
pocket2.Profile = sketch4
pocket2.Type = "ThroughAll"

doc.recompute()
